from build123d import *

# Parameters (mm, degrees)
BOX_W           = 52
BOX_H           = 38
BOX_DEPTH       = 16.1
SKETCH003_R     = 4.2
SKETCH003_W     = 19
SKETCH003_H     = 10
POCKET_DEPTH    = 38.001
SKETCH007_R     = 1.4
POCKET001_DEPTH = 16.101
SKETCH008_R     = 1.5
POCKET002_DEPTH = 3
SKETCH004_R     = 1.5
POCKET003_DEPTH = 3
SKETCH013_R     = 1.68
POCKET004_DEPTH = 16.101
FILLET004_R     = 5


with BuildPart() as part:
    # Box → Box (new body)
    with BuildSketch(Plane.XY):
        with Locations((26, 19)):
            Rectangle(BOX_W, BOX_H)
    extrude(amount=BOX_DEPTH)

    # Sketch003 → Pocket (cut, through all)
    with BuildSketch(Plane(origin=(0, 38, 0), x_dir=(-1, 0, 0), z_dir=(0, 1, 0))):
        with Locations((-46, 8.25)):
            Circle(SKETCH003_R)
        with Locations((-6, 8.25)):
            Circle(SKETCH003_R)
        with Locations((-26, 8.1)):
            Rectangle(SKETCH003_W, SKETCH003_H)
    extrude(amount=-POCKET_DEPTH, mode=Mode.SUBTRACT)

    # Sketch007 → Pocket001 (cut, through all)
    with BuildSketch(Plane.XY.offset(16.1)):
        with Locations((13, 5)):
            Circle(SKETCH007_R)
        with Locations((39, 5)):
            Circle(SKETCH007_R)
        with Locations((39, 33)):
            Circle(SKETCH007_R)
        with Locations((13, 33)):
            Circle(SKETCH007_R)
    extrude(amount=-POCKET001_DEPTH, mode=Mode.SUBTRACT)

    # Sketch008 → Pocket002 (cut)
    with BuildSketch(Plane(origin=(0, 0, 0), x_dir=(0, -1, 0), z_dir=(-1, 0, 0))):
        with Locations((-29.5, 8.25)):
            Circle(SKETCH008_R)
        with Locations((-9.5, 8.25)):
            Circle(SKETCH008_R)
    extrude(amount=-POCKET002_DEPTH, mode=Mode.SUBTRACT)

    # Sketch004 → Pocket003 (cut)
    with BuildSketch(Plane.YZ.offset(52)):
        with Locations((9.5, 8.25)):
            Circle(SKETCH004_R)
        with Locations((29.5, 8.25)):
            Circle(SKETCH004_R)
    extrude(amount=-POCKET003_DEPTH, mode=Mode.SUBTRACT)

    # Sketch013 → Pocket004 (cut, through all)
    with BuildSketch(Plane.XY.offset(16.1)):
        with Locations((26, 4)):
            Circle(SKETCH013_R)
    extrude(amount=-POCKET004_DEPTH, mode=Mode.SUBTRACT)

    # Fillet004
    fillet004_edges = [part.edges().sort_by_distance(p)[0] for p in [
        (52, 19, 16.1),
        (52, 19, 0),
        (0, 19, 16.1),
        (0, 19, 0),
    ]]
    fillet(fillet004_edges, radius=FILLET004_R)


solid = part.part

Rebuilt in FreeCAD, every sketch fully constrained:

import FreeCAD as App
import Part
import Sketcher
Q = App.Units.Quantity


def edges_at(feature, points):
    """Names of the edges that pass closest to the given points."""
    edges = feature.Shape.Edges
    near = lambda p: min(range(len(edges)), key=lambda i: edges[i].distToShape(Part.Vertex(*p))[0])
    return sorted({f"Edge{near(p) + 1}" for p in points})

doc = App.newDocument("Part")
body = doc.addObject("PartDesign::Body", "Body")

# Sketch on XY plane
sketch1 = body.newObject("Sketcher::SketchObject", "Sketch")
sketch1.AttachmentSupport = (doc.getObject("XY_Plane"), [""])
sketch1.MapMode = "FlatFace"
sketch1.addGeometry(Part.LineSegment(App.Vector(0, 38, 0), App.Vector(0, 0, 0)), False)
sketch1.addGeometry(Part.LineSegment(App.Vector(0, 0, 0), App.Vector(52, 0, 0)), False)
sketch1.addGeometry(Part.LineSegment(App.Vector(52, 0, 0), App.Vector(52, 38, 0)), False)
sketch1.addGeometry(Part.LineSegment(App.Vector(52, 38, 0), App.Vector(0, 38, 0)), False)
sketch1.addConstraint(Sketcher.Constraint("Coincident", 0, 2, 1, 1))
sketch1.addConstraint(Sketcher.Constraint("Coincident", 1, 2, 2, 1))
sketch1.addConstraint(Sketcher.Constraint("Coincident", 2, 2, 3, 1))
sketch1.addConstraint(Sketcher.Constraint("Coincident", 3, 2, 0, 1))
sketch1.addConstraint(Sketcher.Constraint("Vertical", 0))
sketch1.addConstraint(Sketcher.Constraint("Horizontal", 1))
sketch1.addConstraint(Sketcher.Constraint("Vertical", 2))
sketch1.addConstraint(Sketcher.Constraint("Horizontal", 3))
sketch1.addConstraint(Sketcher.Constraint("Coincident", 0, 2, -1, 1))
sketch1.addConstraint(Sketcher.Constraint("DistanceX", 1, 1, 1, 2, Q("52 mm")))
sketch1.addConstraint(Sketcher.Constraint("DistanceY", 0, 2, 0, 1, Q("38 mm")))
pad1 = body.newObject("PartDesign::Pad", "Pad")
pad1.Profile = sketch1
pad1.Length = 16.1

# Sketch on XZ plane
sketch2 = body.newObject("Sketcher::SketchObject", "Sketch001")
sketch2.AttachmentSupport = (doc.getObject("XZ_Plane"), [""])
sketch2.MapMode = "FlatFace"
sketch2.AttachmentOffset = App.Placement(App.Vector(0, 0, -38), App.Rotation())
sketch2.addGeometry(Part.Circle(App.Vector(46, 8.2, 0), App.Vector(0, 0, 1), 4.2), False)
sketch2.addGeometry(Part.Circle(App.Vector(6, 8.2, 0), App.Vector(0, 0, 1), 4.2), False)
sketch2.addGeometry(Part.LineSegment(App.Vector(35.5, 13.1, 0), App.Vector(35.5, 3.1, 0)), False)
sketch2.addGeometry(Part.LineSegment(App.Vector(35.5, 3.1, 0), App.Vector(16.5, 3.1, 0)), False)
sketch2.addGeometry(Part.LineSegment(App.Vector(16.5, 3.1, 0), App.Vector(16.5, 13.1, 0)), False)
sketch2.addGeometry(Part.LineSegment(App.Vector(16.5, 13.1, 0), App.Vector(35.5, 13.1, 0)), False)
sketch2.addConstraint(Sketcher.Constraint("Coincident", 2, 2, 3, 1))
sketch2.addConstraint(Sketcher.Constraint("Coincident", 3, 2, 4, 1))
sketch2.addConstraint(Sketcher.Constraint("Coincident", 4, 2, 5, 1))
sketch2.addConstraint(Sketcher.Constraint("Coincident", 5, 2, 2, 1))
sketch2.addConstraint(Sketcher.Constraint("Vertical", 2))
sketch2.addConstraint(Sketcher.Constraint("Horizontal", 3))
sketch2.addConstraint(Sketcher.Constraint("Vertical", 4))
sketch2.addConstraint(Sketcher.Constraint("Horizontal", 5))
sketch2.addConstraint(Sketcher.Constraint("Equal", 0, 1))
sketch2.addConstraint(Sketcher.Constraint("Horizontal", 0, 3, 1, 3))
sketch2.addConstraint(Sketcher.Constraint("Diameter", 0, Q("8.4 mm")))
sketch2.addConstraint(Sketcher.Constraint("DistanceX", 3, 2, 3, 1, Q("19 mm")))
sketch2.addConstraint(Sketcher.Constraint("DistanceY", 2, 2, 2, 1, Q("10 mm")))
sketch2.addConstraint(Sketcher.Constraint("DistanceX", -1, 1, 0, 3, Q("46 mm")))
sketch2.addConstraint(Sketcher.Constraint("DistanceX", -1, 1, 1, 3, Q("6 mm")))
sketch2.addConstraint(Sketcher.Constraint("DistanceX", -1, 1, 2, 2, Q("35.5 mm")))
sketch2.addConstraint(Sketcher.Constraint("DistanceY", -1, 1, 2, 2, Q("3.1 mm")))
sketch2.addConstraint(Sketcher.Constraint("DistanceY", -1, 1, 0, 3, Q("8.25 mm")))
pocket1 = body.newObject("PartDesign::Pocket", "Pocket")
pocket1.Profile = sketch2
pocket1.Type = "ThroughAll"
pocket1.Reversed = True

# Sketch on XY plane
sketch3 = body.newObject("Sketcher::SketchObject", "Sketch002")
sketch3.AttachmentSupport = (doc.getObject("XY_Plane"), [""])
sketch3.MapMode = "FlatFace"
sketch3.AttachmentOffset = App.Placement(App.Vector(0, 0, 16.1), App.Rotation())
sketch3.addGeometry(Part.Circle(App.Vector(13, 5, 0), App.Vector(0, 0, 1), 1.4), False)
sketch3.addGeometry(Part.Circle(App.Vector(39, 5, 0), App.Vector(0, 0, 1), 1.4), False)
sketch3.addGeometry(Part.Circle(App.Vector(39, 33, 0), App.Vector(0, 0, 1), 1.4), False)
sketch3.addGeometry(Part.Circle(App.Vector(13, 33, 0), App.Vector(0, 0, 1), 1.4), False)
sketch3.addConstraint(Sketcher.Constraint("Equal", 0, 1))
sketch3.addConstraint(Sketcher.Constraint("Equal", 1, 2))
sketch3.addConstraint(Sketcher.Constraint("Equal", 2, 3))
sketch3.addConstraint(Sketcher.Constraint("Horizontal", 0, 3, 1, 3))
sketch3.addConstraint(Sketcher.Constraint("Horizontal", 2, 3, 3, 3))
sketch3.addConstraint(Sketcher.Constraint("Vertical", 1, 3, 2, 3))
sketch3.addConstraint(Sketcher.Constraint("Vertical", 0, 3, 3, 3))
sketch3.addConstraint(Sketcher.Constraint("Diameter", 0, Q("2.8 mm")))
sketch3.addConstraint(Sketcher.Constraint("DistanceX", -1, 1, 0, 3, Q("13 mm")))
sketch3.addConstraint(Sketcher.Constraint("DistanceY", -1, 1, 0, 3, Q("5 mm")))
sketch3.addConstraint(Sketcher.Constraint("DistanceX", -1, 1, 1, 3, Q("39 mm")))
sketch3.addConstraint(Sketcher.Constraint("DistanceY", -1, 1, 2, 3, Q("33 mm")))
pocket2 = body.newObject("PartDesign::Pocket", "Pocket001")
pocket2.Profile = sketch3
pocket2.Type = "ThroughAll"

# Sketch on YZ plane
sketch4 = body.newObject("Sketcher::SketchObject", "Sketch003")
sketch4.AttachmentSupport = (doc.getObject("YZ_Plane"), [""])
sketch4.MapMode = "FlatFace"
sketch4.addGeometry(Part.Circle(App.Vector(29.5, 8.2, 0), App.Vector(0, 0, 1), 1.5), False)
sketch4.addGeometry(Part.Circle(App.Vector(9.5, 8.2, 0), App.Vector(0, 0, 1), 1.5), False)
sketch4.addConstraint(Sketcher.Constraint("Equal", 0, 1))
sketch4.addConstraint(Sketcher.Constraint("Horizontal", 0, 3, 1, 3))
sketch4.addConstraint(Sketcher.Constraint("Diameter", 0, Q("3 mm")))
sketch4.addConstraint(Sketcher.Constraint("DistanceX", 1, 3, 0, 3, Q("20 mm")))
sketch4.addConstraint(Sketcher.Constraint("DistanceX", -1, 1, 0, 3, Q("29.5 mm")))
sketch4.addConstraint(Sketcher.Constraint("DistanceY", -1, 1, 0, 3, Q("8.25 mm")))
pocket3 = body.newObject("PartDesign::Pocket", "Pocket002")
pocket3.Profile = sketch4
pocket3.Length = 3
pocket3.Reversed = True

# Sketch on YZ plane
sketch5 = body.newObject("Sketcher::SketchObject", "Sketch004")
sketch5.AttachmentSupport = (doc.getObject("YZ_Plane"), [""])
sketch5.MapMode = "FlatFace"
sketch5.AttachmentOffset = App.Placement(App.Vector(0, 0, 52), App.Rotation())
sketch5.addGeometry(Part.Circle(App.Vector(9.5, 8.2, 0), App.Vector(0, 0, 1), 1.5), False)
sketch5.addGeometry(Part.Circle(App.Vector(29.5, 8.2, 0), App.Vector(0, 0, 1), 1.5), False)
sketch5.addConstraint(Sketcher.Constraint("Equal", 0, 1))
sketch5.addConstraint(Sketcher.Constraint("Horizontal", 0, 3, 1, 3))
sketch5.addConstraint(Sketcher.Constraint("Diameter", 0, Q("3 mm")))
sketch5.addConstraint(Sketcher.Constraint("DistanceX", 0, 3, 1, 3, Q("20 mm")))
sketch5.addConstraint(Sketcher.Constraint("DistanceX", -1, 1, 0, 3, Q("9.5 mm")))
sketch5.addConstraint(Sketcher.Constraint("DistanceY", -1, 1, 0, 3, Q("8.25 mm")))
pocket4 = body.newObject("PartDesign::Pocket", "Pocket003")
pocket4.Profile = sketch5
pocket4.Length = 3

# Sketch on XY plane
sketch6 = body.newObject("Sketcher::SketchObject", "Sketch005")
sketch6.AttachmentSupport = (doc.getObject("XY_Plane"), [""])
sketch6.MapMode = "FlatFace"
sketch6.AttachmentOffset = App.Placement(App.Vector(0, 0, 16.1), App.Rotation())
sketch6.addGeometry(Part.Circle(App.Vector(26, 4, 0), App.Vector(0, 0, 1), 1.7), False)
sketch6.addConstraint(Sketcher.Constraint("Diameter", 0, Q("3.36 mm")))
sketch6.addConstraint(Sketcher.Constraint("DistanceX", -1, 1, 0, 3, Q("26 mm")))
sketch6.addConstraint(Sketcher.Constraint("DistanceY", -1, 1, 0, 3, Q("4 mm")))
pocket5 = body.newObject("PartDesign::Pocket", "Pocket004")
pocket5.Profile = sketch6
pocket5.Type = "ThroughAll"
doc.recompute()

fillet = body.newObject("PartDesign::Fillet", "Fillet")
fillet.Base = (pocket5, edges_at(pocket5, [
    (52, 19, 16.1),
    (52, 19, 0),
    (0, 19, 16.1),
    (0, 19, 0),
]))
fillet.Radius = 5

doc.recompute()
